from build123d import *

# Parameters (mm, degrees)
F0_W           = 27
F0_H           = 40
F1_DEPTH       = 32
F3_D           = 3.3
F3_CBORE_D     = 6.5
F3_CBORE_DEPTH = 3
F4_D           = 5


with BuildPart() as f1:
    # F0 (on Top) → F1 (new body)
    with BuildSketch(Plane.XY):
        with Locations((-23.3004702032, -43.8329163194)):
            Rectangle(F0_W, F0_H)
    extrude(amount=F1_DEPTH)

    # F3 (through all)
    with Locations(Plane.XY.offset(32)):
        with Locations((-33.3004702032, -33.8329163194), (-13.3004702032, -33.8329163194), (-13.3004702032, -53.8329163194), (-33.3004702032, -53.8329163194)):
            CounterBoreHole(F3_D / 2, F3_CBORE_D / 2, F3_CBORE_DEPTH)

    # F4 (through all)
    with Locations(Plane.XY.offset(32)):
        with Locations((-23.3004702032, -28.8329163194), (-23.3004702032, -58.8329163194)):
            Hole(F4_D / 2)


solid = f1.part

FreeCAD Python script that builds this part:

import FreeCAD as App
import Part
import Sketcher

V = App.Vector
Q = App.Units.Quantity

doc = App.newDocument("Part")
body = doc.addObject("PartDesign::Body", "Body")

# Sketch on XY plane
sketch1 = body.newObject("Sketcher::SketchObject", "Sketch")
sketch1.AttachmentSupport = (doc.getObject("XY_Plane"), [""])
sketch1.MapMode = "FlatFace"
sketch1.addGeometry([
    Part.LineSegment(V(-36.80047, -23.832916, 0), V(-36.80047, -63.832916, 0)),
    Part.LineSegment(V(-36.80047, -63.832916, 0), V(-9.80047, -63.832916, 0)),
    Part.LineSegment(V(-9.80047, -63.832916, 0), V(-9.80047, -23.832916, 0)),
    Part.LineSegment(V(-9.80047, -23.832916, 0), V(-36.80047, -23.832916, 0)),
], False)
sketch1.addConstraint([
    Sketcher.Constraint("Coincident", 0, 2, 1, 1),
    Sketcher.Constraint("Coincident", 1, 2, 2, 1),
    Sketcher.Constraint("Coincident", 2, 2, 3, 1),
    Sketcher.Constraint("Coincident", 3, 2, 0, 1),
    Sketcher.Constraint("Vertical", 0),
    Sketcher.Constraint("Horizontal", 1),
    Sketcher.Constraint("Vertical", 2),
    Sketcher.Constraint("Horizontal", 3),
    Sketcher.Constraint("DistanceX", 1, 1, 1, 2, Q("27 mm")),
    Sketcher.Constraint("DistanceY", 0, 2, 0, 1, Q("40 mm")),
    Sketcher.Constraint("DistanceX", 0, 2, -1, 1, Q("36.80047 mm")),
    Sketcher.Constraint("DistanceY", 0, 2, -1, 1, Q("63.832916 mm")),
])
pad1 = body.newObject("PartDesign::Pad", "Pad")
pad1.Profile = sketch1
pad1.Length = 32

# Sketch on XY plane
sketch2 = body.newObject("Sketcher::SketchObject", "Sketch001")
sketch2.AttachmentSupport = (doc.getObject("XY_Plane"), [""])
sketch2.MapMode = "FlatFace"
sketch2.AttachmentOffset = App.Placement(V(0, 0, 32), App.Rotation())
sketch2.addGeometry([
    Part.Circle(V(-33.30047, -33.832916, 0), V(0, 0, 1), 1.65),
    Part.Circle(V(-13.30047, -33.832916, 0), V(0, 0, 1), 1.65),
    Part.Circle(V(-13.30047, -53.832916, 0), V(0, 0, 1), 1.65),
    Part.Circle(V(-33.30047, -53.832916, 0), V(0, 0, 1), 1.65),
], False)
sketch2.addConstraint([
    Sketcher.Constraint("Equal", 0, 1),
    Sketcher.Constraint("Equal", 1, 2),
    Sketcher.Constraint("Equal", 2, 3),
    Sketcher.Constraint("Horizontal", 0, 3, 1, 3),
    Sketcher.Constraint("Horizontal", 2, 3, 3, 3),
    Sketcher.Constraint("Vertical", 1, 3, 2, 3),
    Sketcher.Constraint("Vertical", 0, 3, 3, 3),
    Sketcher.Constraint("Diameter", 0, Q("3.3 mm")),
    Sketcher.Constraint("DistanceX", 0, 3, 1, 3, Q("20 mm")),
    Sketcher.Constraint("DistanceY", 2, 3, 1, 3, Q("20 mm")),
    Sketcher.Constraint("DistanceX", 0, 3, -1, 1, Q("33.30047 mm")),
    Sketcher.Constraint("DistanceY", 0, 3, -1, 1, Q("33.832916 mm")),
])
doc.recompute()
hole = body.newObject("PartDesign::Hole", "Hole")
hole.Profile = sketch2
hole.ThreadType = "None"
hole.Diameter = 3.3
hole.DepthType = "ThroughAll"
hole.HoleCutType = "Counterbore"
hole.HoleCutDiameter = 6.5
hole.HoleCutDepth = 3

# Sketch on XY plane
sketch3 = body.newObject("Sketcher::SketchObject", "Sketch002")
sketch3.AttachmentSupport = (doc.getObject("XY_Plane"), [""])
sketch3.MapMode = "FlatFace"
sketch3.AttachmentOffset = App.Placement(V(0, 0, 32), App.Rotation())
sketch3.addGeometry([
    Part.Circle(V(-23.30047, -28.832916, 0), V(0, 0, 1), 2.5),
    Part.Circle(V(-23.30047, -58.832916, 0), V(0, 0, 1), 2.5),
], False)
sketch3.addConstraint([
    Sketcher.Constraint("Equal", 0, 1),
    Sketcher.Constraint("Vertical", 0, 3, 1, 3),
    Sketcher.Constraint("Diameter", 0, Q("5 mm")),
    Sketcher.Constraint("DistanceY", 1, 3, 0, 3, Q("30 mm")),
    Sketcher.Constraint("DistanceX", 0, 3, -1, 1, Q("23.30047 mm")),
    Sketcher.Constraint("DistanceY", 0, 3, -1, 1, Q("28.832916 mm")),
])
doc.recompute()
hole2 = body.newObject("PartDesign::Hole", "Hole001")
hole2.Profile = sketch3
hole2.ThreadType = "None"
hole2.Diameter = 5
hole2.DepthType = "ThroughAll"

doc.recompute()
